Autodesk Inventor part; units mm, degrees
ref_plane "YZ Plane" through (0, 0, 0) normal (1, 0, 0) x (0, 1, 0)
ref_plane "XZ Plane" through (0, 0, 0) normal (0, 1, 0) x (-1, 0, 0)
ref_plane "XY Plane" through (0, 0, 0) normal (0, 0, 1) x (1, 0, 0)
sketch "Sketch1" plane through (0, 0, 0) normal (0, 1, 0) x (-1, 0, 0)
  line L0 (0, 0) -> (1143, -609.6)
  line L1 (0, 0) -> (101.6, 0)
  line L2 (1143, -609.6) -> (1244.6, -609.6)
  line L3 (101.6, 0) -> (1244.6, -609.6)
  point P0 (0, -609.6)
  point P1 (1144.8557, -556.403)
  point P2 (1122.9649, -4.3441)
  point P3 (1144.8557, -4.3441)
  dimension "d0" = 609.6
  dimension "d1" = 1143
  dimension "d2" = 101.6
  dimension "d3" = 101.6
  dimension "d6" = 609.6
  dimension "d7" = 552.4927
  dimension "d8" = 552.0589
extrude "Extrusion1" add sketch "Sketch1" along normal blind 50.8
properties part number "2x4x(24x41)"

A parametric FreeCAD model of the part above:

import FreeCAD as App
import Part
import Sketcher
Q = App.Units.Quantity

doc = App.newDocument("Part")
body = doc.addObject("PartDesign::Body", "Body")

# Sketch on XZ plane
sketch1 = doc.addObject("Sketcher::SketchObject", "Sketch")
body.addObject(sketch1)
sketch1.AttachmentSupport = (doc.XZ_Plane, [""])
sketch1.MapMode = "FlatFace"
sketch1.addGeometry([
    Part.LineSegment(App.Vector(-102, 0, 0), App.Vector(0, 0, 0)),
    Part.LineSegment(App.Vector(0, 0, 0), App.Vector(-1143, -610, 0)),
    Part.LineSegment(App.Vector(-1143, -610, 0), App.Vector(-1245, -610, 0)),
    Part.LineSegment(App.Vector(-1245, -610, 0), App.Vector(-102, 0, 0)),
], False)
sketch1.addConstraint([
    Sketcher.Constraint("Coincident", 0, 2, 1, 1),
    Sketcher.Constraint("Coincident", 1, 2, 2, 1),
    Sketcher.Constraint("Coincident", 2, 2, 3, 1),
    Sketcher.Constraint("Coincident", 3, 2, 0, 1),
    Sketcher.Constraint("Horizontal", 0),
    Sketcher.Constraint("Horizontal", 2),
    Sketcher.Constraint("Coincident", 0, 2, -1, 1),
    Sketcher.Constraint("Parallel", 1, 3),
    Sketcher.Constraint("DistanceX", 0, 1, 0, 2, Q("4 in")),
    Sketcher.Constraint("DistanceX", 1, 2, -1, 1, Q("45 in")),
    Sketcher.Constraint("DistanceY", 1, 2, -1, 1, Q("24 in")),
])
pad1 = doc.addObject("PartDesign::Pad", "Pad")
body.addObject(pad1)
pad1.Profile = sketch1
pad1.Length = Q("2 in")
pad1.Reversed = True

doc.recompute()
